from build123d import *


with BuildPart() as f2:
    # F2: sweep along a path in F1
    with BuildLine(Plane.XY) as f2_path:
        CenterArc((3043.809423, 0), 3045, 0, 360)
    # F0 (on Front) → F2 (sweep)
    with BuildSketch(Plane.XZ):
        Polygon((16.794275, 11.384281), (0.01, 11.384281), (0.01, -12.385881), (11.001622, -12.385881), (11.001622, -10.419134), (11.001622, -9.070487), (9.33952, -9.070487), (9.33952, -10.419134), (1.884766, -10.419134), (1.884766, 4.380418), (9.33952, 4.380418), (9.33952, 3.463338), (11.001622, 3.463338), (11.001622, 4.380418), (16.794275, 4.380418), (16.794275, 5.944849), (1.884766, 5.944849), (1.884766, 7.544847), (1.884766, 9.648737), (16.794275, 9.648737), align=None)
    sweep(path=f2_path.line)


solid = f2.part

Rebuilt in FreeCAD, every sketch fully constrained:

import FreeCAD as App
import Part
import Sketcher
from FreeCAD import Vector


def add_polygon(sketch, points):
    """Adds a closed chain of lines whose ends are joined by coincident constraints."""
    first, n = sketch.GeometryCount, len(points)
    for a, b in zip(points, points[1:] + points[:1]):
        sketch.addGeometry(Part.LineSegment(App.Vector(*a, 0), App.Vector(*b, 0)), False)
    for i in range(n):
        sketch.addConstraint(Sketcher.Constraint("Coincident", first + i, 2, first + (i + 1) % n, 1))

doc = App.newDocument("Part")
body = doc.addObject("PartDesign::Body", "Body")

# Sketch on XZ plane
sketch1 = body.newObject("Sketcher::SketchObject", "Sketch")
sketch1.AttachmentSupport = (doc.getObject("XZ_Plane"), [""])
sketch1.MapMode = "FlatFace"
add_polygon(sketch1, [(16.8, 11.4), (0, 11.4), (0, -12.4), (11, -12.4), (11, -9.1), (9.3, -9.1), (9.3, -10.4), (1.9, -10.4), (1.9, 4.4), (9.3, 4.4), (9.3, 3.5), (11, 3.5), (11, 4.4), (16.8, 4.4), (16.8, 5.9), (1.9, 5.9), (1.9, 9.6), (16.8, 9.6)])  # lines 0-17
sketch1.addConstraint([
    Sketcher.Constraint("Horizontal", 0),
    Sketcher.Constraint("Vertical", 1),
    Sketcher.Constraint("Horizontal", 2),
    Sketcher.Constraint("Vertical", 3),
    Sketcher.Constraint("Horizontal", 4),
    Sketcher.Constraint("Vertical", 5),
    Sketcher.Constraint("Horizontal", 6),
    Sketcher.Constraint("Vertical", 7),
    Sketcher.Constraint("Horizontal", 8),
    Sketcher.Constraint("Vertical", 9),
    Sketcher.Constraint("Horizontal", 10),
    Sketcher.Constraint("Vertical", 11),
    Sketcher.Constraint("Horizontal", 12),
    Sketcher.Constraint("Vertical", 13),
    Sketcher.Constraint("Horizontal", 14),
    Sketcher.Constraint("Vertical", 15),
    Sketcher.Constraint("Horizontal", 16),
    Sketcher.Constraint("Vertical", 17),
    Sketcher.Constraint("Horizontal", 8, 2, 11, 2),
    Sketcher.Constraint("Vertical", 5, 2, 8, 2),
    Sketcher.Constraint("Vertical", 3, 2, 10, 2),
    Sketcher.Constraint("Vertical", 7, 2, 14, 2),
    Sketcher.Constraint("Vertical", 13, 2, 16, 2),
    Sketcher.Constraint("DistanceX", -1, 1, 0, 2, 0.01),
    Sketcher.Constraint("DistanceX", 4, 2, 4, 1, 1.662102),
    Sketcher.Constraint("DistanceX", 14, 2, 14, 1, 14.909509),
    Sketcher.Constraint("DistanceY", 1, 2, 1, 1, 23.770162),
    Sketcher.Constraint("DistanceY", 7, 1, 7, 2, 14.799552),
    Sketcher.Constraint("DistanceY", 9, 2, 9, 1, 0.91708),
    Sketcher.Constraint("DistanceY", 13, 1, 13, 2, 1.564431),
    Sketcher.Constraint("DistanceY", 15, 1, 15, 2, 3.703888),
    Sketcher.Constraint("DistanceX", 0, 2, 0, 1, 16.784275),
    Sketcher.Constraint("DistanceX", 2, 1, 2, 2, 10.991622),
    Sketcher.Constraint("DistanceY", 3, 1, 3, 2, 3.315394),
    Sketcher.Constraint("DistanceY", 5, 2, 5, 1, 1.348647),
    Sketcher.Constraint("DistanceY", -1, 1, 0, 2, 11.384281),
])

# Sketch on XY plane
sketch2 = body.newObject("Sketcher::SketchObject", "Sketch001")
sketch2.AttachmentSupport = (doc.getObject("XY_Plane"), [""])
sketch2.MapMode = "FlatFace"
sketch2.addGeometry(Part.Circle(Vector(3044, 0, 0), Vector(0, 0, 1), 3045), False)
sketch2.addConstraint([
    Sketcher.Constraint("PointOnObject", 0, 3, -1),
    Sketcher.Constraint("Diameter", 0, 6090.0),
    Sketcher.Constraint("DistanceX", -1, 1, 0, 3, 3043.809423),
])
doc.recompute()

additivepipe = body.newObject("PartDesign::AdditivePipe", "AdditivePipe")
additivepipe.Profile = sketch1
additivepipe.Spine = (sketch2, ["Edge1"])

doc.recompute()
